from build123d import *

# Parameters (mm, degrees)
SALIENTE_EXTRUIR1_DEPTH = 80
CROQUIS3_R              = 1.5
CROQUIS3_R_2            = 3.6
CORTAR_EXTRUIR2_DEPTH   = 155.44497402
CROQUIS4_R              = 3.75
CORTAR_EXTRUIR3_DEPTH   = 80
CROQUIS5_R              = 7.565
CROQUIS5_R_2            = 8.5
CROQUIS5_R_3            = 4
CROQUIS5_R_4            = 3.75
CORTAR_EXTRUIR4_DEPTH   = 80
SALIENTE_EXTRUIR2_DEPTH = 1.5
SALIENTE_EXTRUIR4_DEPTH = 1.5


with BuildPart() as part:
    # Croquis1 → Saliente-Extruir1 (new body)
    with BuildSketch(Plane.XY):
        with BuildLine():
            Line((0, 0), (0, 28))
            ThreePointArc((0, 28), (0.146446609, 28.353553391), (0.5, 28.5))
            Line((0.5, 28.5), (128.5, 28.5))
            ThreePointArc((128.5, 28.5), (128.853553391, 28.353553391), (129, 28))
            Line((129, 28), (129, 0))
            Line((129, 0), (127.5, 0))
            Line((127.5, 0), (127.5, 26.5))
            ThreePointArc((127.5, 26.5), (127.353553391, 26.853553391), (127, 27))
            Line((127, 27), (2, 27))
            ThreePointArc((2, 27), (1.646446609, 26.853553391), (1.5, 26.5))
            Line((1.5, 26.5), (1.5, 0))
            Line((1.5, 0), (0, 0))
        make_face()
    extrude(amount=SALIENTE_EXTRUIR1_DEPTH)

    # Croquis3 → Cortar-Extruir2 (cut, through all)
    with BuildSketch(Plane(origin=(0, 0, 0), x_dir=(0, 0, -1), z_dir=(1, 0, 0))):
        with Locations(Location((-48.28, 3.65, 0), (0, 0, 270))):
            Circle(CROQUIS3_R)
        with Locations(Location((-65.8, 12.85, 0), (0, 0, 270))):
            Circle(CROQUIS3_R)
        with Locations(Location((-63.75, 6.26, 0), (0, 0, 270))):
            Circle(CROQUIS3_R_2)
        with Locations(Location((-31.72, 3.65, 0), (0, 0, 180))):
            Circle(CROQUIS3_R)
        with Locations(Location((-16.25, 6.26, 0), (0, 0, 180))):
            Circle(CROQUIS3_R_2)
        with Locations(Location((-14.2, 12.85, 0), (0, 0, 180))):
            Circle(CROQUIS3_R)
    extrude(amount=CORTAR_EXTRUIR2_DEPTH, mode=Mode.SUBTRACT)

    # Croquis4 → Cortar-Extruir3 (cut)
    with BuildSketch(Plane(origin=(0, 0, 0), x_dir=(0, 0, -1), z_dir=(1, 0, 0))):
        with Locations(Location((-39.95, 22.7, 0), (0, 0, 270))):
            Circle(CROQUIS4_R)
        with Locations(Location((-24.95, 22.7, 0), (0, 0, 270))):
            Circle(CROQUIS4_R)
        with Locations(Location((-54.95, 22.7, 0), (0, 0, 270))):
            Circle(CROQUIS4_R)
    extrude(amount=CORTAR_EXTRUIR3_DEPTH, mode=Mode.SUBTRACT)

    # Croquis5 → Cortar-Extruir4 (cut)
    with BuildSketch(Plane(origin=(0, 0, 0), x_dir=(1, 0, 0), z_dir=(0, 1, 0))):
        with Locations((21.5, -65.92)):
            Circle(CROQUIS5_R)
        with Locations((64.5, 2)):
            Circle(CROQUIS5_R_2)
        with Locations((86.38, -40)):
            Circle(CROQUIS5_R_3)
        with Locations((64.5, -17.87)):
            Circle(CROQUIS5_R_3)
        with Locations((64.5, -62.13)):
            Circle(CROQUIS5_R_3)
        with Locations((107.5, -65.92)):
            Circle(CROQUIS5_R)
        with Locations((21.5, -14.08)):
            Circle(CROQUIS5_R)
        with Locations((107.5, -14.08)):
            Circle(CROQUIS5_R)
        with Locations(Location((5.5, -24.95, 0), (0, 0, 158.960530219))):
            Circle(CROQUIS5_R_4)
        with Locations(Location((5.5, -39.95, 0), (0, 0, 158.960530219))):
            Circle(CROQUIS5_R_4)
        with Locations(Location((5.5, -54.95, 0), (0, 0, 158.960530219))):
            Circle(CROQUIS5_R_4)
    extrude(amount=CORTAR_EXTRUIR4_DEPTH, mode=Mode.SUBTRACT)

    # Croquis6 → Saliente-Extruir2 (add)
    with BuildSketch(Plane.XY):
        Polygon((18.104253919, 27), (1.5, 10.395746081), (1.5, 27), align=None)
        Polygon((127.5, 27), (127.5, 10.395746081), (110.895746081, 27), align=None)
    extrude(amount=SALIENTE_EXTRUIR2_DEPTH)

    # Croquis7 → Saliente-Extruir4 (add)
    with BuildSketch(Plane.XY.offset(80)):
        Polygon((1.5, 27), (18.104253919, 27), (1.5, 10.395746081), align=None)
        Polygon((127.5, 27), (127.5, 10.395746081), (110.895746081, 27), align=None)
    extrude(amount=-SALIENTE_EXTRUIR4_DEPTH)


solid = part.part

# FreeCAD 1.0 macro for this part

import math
import FreeCAD as App
import Part
import Sketcher

V = App.Vector

doc = App.newDocument("Part")
params = doc.addObject("Spreadsheet::Sheet", "Params")
for row, (alias, value) in enumerate([
    ("sketch1_radius", "0.5 mm"),
    ("sketch1_width", "125 mm"),
    ("sketch1_width2", "128 mm"),
    ("sketch1_height", "28 mm"),
    ("sketch1_height2", "26.5 mm"),
    ("pad1_length", "80 mm"),
    ("sketch2_diameter", "3 mm"),
    ("sketch2_diameter2", "7.2 mm"),
    ("sketch3_diameter", "7.5 mm"),
    ("pocket2_length", "80 mm"),
    ("sketch4_diameter", "17 mm"),
    ("sketch4_diameter2", "8 mm"),
    ("sketch4_diameter3", "7.5 mm"),
    ("sketch4_diameter4", "15.13 mm"),
    ("pocket3_length", "80 mm"),
    ("pad2_length", "1.5 mm"),
    ("pad3_length", "1.5 mm"),
], start=1):
    params.set(f"A{row}", alias)
    params.set(f"B{row}", "=" + value)
    params.setAlias(f"B{row}", alias)

body = doc.addObject("PartDesign::Body", "Body")

# Sketch on XY plane
sketch1 = body.newObject("Sketcher::SketchObject", "Sketch")
sketch1.AttachmentSupport = (doc.getObject("XY_Plane"), [""])
sketch1.MapMode = "FlatFace"
sketch1.addGeometry([
    Part.LineSegment(V(0, 28, 0), V(0, 0, 0)),  # 0
    Part.LineSegment(V(0, 0, 0), V(1.5, 0, 0)),  # 1
    Part.LineSegment(V(1.5, 0, 0), V(1.5, 26.5, 0)),  # 2
    Part.ArcOfCircle(Part.Circle(V(2, 26.5, 0), V(0, 0, 1), 0.5), math.radians(90), math.radians(180)),  # 3
    Part.LineSegment(V(2, 27, 0), V(127, 27, 0)),  # 4
    Part.ArcOfCircle(Part.Circle(V(127, 26.5, 0), V(0, 0, 1), 0.5), math.radians(0), math.radians(90)),  # 5
    Part.LineSegment(V(127.5, 26.5, 0), V(127.5, 0, 0)),  # 6
    Part.LineSegment(V(127.5, 0, 0), V(129, 0, 0)),  # 7
    Part.LineSegment(V(129, 0, 0), V(129, 28, 0)),  # 8
    Part.ArcOfCircle(Part.Circle(V(128.5, 28, 0), V(0, 0, 1), 0.5), math.radians(0), math.radians(90)),  # 9
    Part.LineSegment(V(128.5, 28.5, 0), V(0.5, 28.5, 0)),  # 10
    Part.ArcOfCircle(Part.Circle(V(0.5, 28, 0), V(0, 0, 1), 0.5), math.radians(90), math.radians(180)),  # 11
], False)
sketch1.addConstraint([
    Sketcher.Constraint("Coincident", 0, 2, 1, 1),
    Sketcher.Constraint("Coincident", 1, 2, 2, 1),
    Sketcher.Constraint("Tangent", 2, 2, 3, 2),
    Sketcher.Constraint("Tangent", 3, 1, 4, 1),
    Sketcher.Constraint("Tangent", 4, 2, 5, 2),
    Sketcher.Constraint("Tangent", 5, 1, 6, 1),
    Sketcher.Constraint("Coincident", 6, 2, 7, 1),
    Sketcher.Constraint("Coincident", 7, 2, 8, 1),
    Sketcher.Constraint("Tangent", 8, 2, 9, 1),
    Sketcher.Constraint("Tangent", 9, 2, 10, 1),
    Sketcher.Constraint("Tangent", 10, 2, 11, 1),
    Sketcher.Constraint("Tangent", 11, 2, 0, 1),
    Sketcher.Constraint("Vertical", 0),
    Sketcher.Constraint("Horizontal", 1),
    Sketcher.Constraint("Vertical", 2),
    Sketcher.Constraint("Horizontal", 4),
    Sketcher.Constraint("Vertical", 6),
    Sketcher.Constraint("Horizontal", 7),
    Sketcher.Constraint("Vertical", 8),
    Sketcher.Constraint("Horizontal", 10),
    Sketcher.Constraint("Coincident", 0, 2, -1, 1),
    Sketcher.Constraint("Equal", 3, 5),
    Sketcher.Constraint("Equal", 5, 9),
    Sketcher.Constraint("Equal", 9, 11),
    Sketcher.Constraint("PointOnObject", 6, 2, -1),
    Sketcher.Constraint("Equal", 1, 7),
    Sketcher.Constraint("Radius", 3, 0.5),
    Sketcher.Constraint("DistanceX", 4, 1, 4, 2, 125.0),
    Sketcher.Constraint("DistanceX", 10, 2, 10, 1, 128.0),
    Sketcher.Constraint("DistanceY", 0, 2, 0, 1, 28.0),
    Sketcher.Constraint("DistanceY", 2, 1, 2, 2, 26.5),
])
sketch1.setExpression("Constraints[26]", "Params.sketch1_radius")
sketch1.setExpression("Constraints[27]", "Params.sketch1_width")
sketch1.setExpression("Constraints[28]", "Params.sketch1_width2")
sketch1.setExpression("Constraints[29]", "Params.sketch1_height")
sketch1.setExpression("Constraints[30]", "Params.sketch1_height2")
pad1 = body.newObject("PartDesign::Pad", "Pad")
pad1.Profile = sketch1
pad1.setExpression("Length", "Params.pad1_length")

# Sketch on YZ plane
sketch2 = body.newObject("Sketcher::SketchObject", "Sketch001")
sketch2.AttachmentSupport = (doc.getObject("YZ_Plane"), [""])
sketch2.MapMode = "FlatFace"
sketch2.addGeometry([
    Part.Circle(V(3.65, 48.28, 0), V(0, 0, 1), 1.5),  # 0
    Part.Circle(V(12.85, 65.8, 0), V(0, 0, 1), 1.5),  # 1
    Part.Circle(V(6.26, 63.75, 0), V(0, 0, 1), 3.6),  # 2
    Part.Circle(V(3.65, 31.72, 0), V(0, 0, 1), 1.5),  # 3
    Part.Circle(V(6.26, 16.25, 0), V(0, 0, 1), 3.6),  # 4
    Part.Circle(V(12.85, 14.2, 0), V(0, 0, 1), 1.5),  # 5
], False)
sketch2.addConstraint([
    Sketcher.Constraint("Equal", 0, 1),
    Sketcher.Constraint("Equal", 1, 3),
    Sketcher.Constraint("Equal", 2, 4),
    Sketcher.Constraint("Equal", 3, 5),
    Sketcher.Constraint("Vertical", 0, 3, 3, 3),
    Sketcher.Constraint("Vertical", 2, 3, 4, 3),
    Sketcher.Constraint("Vertical", 1, 3, 5, 3),
    Sketcher.Constraint("Diameter", 0, 3.0),
    Sketcher.Constraint("Diameter", 2, 7.2),
    Sketcher.Constraint("DistanceY", -1, 1, 1, 3, 65.8),
    Sketcher.Constraint("DistanceY", -1, 1, 5, 3, 14.2),
    Sketcher.Constraint("DistanceX", 0, 3, 1, 3, 9.2),
    Sketcher.Constraint("DistanceY", 4, 3, 2, 3, 47.5),
    Sketcher.Constraint("DistanceX", -1, 1, 0, 3, 3.65),
    Sketcher.Constraint("DistanceY", -1, 1, 0, 3, 48.28),
    Sketcher.Constraint("DistanceX", -1, 1, 2, 3, 6.26),
    Sketcher.Constraint("DistanceY", -1, 1, 2, 3, 63.75),
    Sketcher.Constraint("DistanceY", -1, 1, 3, 3, 31.72),
])
sketch2.setExpression("Constraints[7]", "Params.sketch2_diameter")
sketch2.setExpression("Constraints[8]", "Params.sketch2_diameter2")
pocket1 = body.newObject("PartDesign::Pocket", "Pocket")
pocket1.Profile = sketch2
pocket1.Type = "ThroughAll"
pocket1.Reversed = True

# Sketch on YZ plane
sketch3 = body.newObject("Sketcher::SketchObject", "Sketch002")
sketch3.AttachmentSupport = (doc.getObject("YZ_Plane"), [""])
sketch3.MapMode = "FlatFace"
sketch3.addGeometry([
    Part.Circle(V(22.7, 39.95, 0), V(0, 0, 1), 3.75),
    Part.Circle(V(22.7, 24.95, 0), V(0, 0, 1), 3.75),
    Part.Circle(V(22.7, 54.95, 0), V(0, 0, 1), 3.75),
], False)
sketch3.addConstraint([
    Sketcher.Constraint("Equal", 0, 1),
    Sketcher.Constraint("Equal", 1, 2),
    Sketcher.Constraint("Vertical", 0, 3, 1, 3),
    Sketcher.Constraint("Vertical", 1, 3, 2, 3),
    Sketcher.Constraint("Diameter", 0, 7.5),
    Sketcher.Constraint("DistanceY", 1, 3, 0, 3, 15.0),
    Sketcher.Constraint("DistanceY", 0, 3, 2, 3, 15.0),
    Sketcher.Constraint("DistanceX", -1, 1, 0, 3, 22.7),
    Sketcher.Constraint("DistanceY", -1, 1, 0, 3, 39.95),
])
sketch3.setExpression("Constraints[4]", "Params.sketch3_diameter")
pocket2 = body.newObject("PartDesign::Pocket", "Pocket001")
pocket2.Profile = sketch3
pocket2.setExpression("Length", "Params.pocket2_length")
pocket2.Reversed = True

# Sketch on XZ plane
sketch4 = body.newObject("Sketcher::SketchObject", "Sketch003")
sketch4.AttachmentSupport = (doc.getObject("XZ_Plane"), [""])
sketch4.MapMode = "FlatFace"
sketch4.addGeometry([
    Part.Circle(V(21.5, 65.92, 0), V(0, 0, 1), 7.565),  # 0
    Part.Circle(V(64.5, -2, 0), V(0, 0, 1), 8.5),  # 1
    Part.Circle(V(86.38, 40, 0), V(0, 0, 1), 4),  # 2
    Part.Circle(V(64.5, 17.87, 0), V(0, 0, 1), 4),  # 3
    Part.Circle(V(64.5, 62.13, 0), V(0, 0, 1), 4),  # 4
    Part.Circle(V(107.5, 65.92, 0), V(0, 0, 1), 7.565),  # 5
    Part.Circle(V(21.5, 14.08, 0), V(0, 0, 1), 7.565),  # 6
    Part.Circle(V(107.5, 14.08, 0), V(0, 0, 1), 7.565),  # 7
    Part.Circle(V(5.5, 24.95, 0), V(0, 0, 1), 3.75),  # 8
    Part.Circle(V(5.5, 39.95, 0), V(0, 0, 1), 3.75),  # 9
    Part.Circle(V(5.5, 54.95, 0), V(0, 0, 1), 3.75),  # 10
], False)
sketch4.addConstraint([
    Sketcher.Constraint("Equal", 2, 3),
    Sketcher.Constraint("Equal", 3, 4),
    Sketcher.Constraint("Equal", 0, 5),
    Sketcher.Constraint("Equal", 5, 6),
    Sketcher.Constraint("Equal", 6, 7),
    Sketcher.Constraint("Equal", 8, 9),
    Sketcher.Constraint("Equal", 9, 10),
    Sketcher.Constraint("Horizontal", 0, 3, 5, 3),
    Sketcher.Constraint("Horizontal", 6, 3, 7, 3),
    Sketcher.Constraint("Vertical", 1, 3, 3, 3),
    Sketcher.Constraint("Vertical", 3, 3, 4, 3),
    Sketcher.Constraint("Vertical", 0, 3, 6, 3),
    Sketcher.Constraint("Vertical", 5, 3, 7, 3),
    Sketcher.Constraint("Vertical", 8, 3, 9, 3),
    Sketcher.Constraint("Vertical", 9, 3, 10, 3),
    Sketcher.Constraint("Diameter", 1, 17.0),
    Sketcher.Constraint("Diameter", 2, 8.0),
    Sketcher.Constraint("Diameter", 8, 7.5),
    Sketcher.Constraint("Diameter", 0, 15.13),
    Sketcher.Constraint("DistanceY", 1, 3, -1, 1, 2.0),
    Sketcher.Constraint("DistanceY", -1, 1, 2, 3, 40.0),
    Sketcher.Constraint("DistanceX", 0, 3, 1, 3, 43.0),
    Sketcher.Constraint("DistanceX", 4, 3, 5, 3, 43.0),
    Sketcher.Constraint("DistanceX", 8, 3, 6, 3, 16.0),
    Sketcher.Constraint("DistanceY", 8, 3, 9, 3, 15.0),
    Sketcher.Constraint("DistanceY", 9, 3, 10, 3, 15.0),
    Sketcher.Constraint("DistanceX", -1, 1, 0, 3, 21.5),
    Sketcher.Constraint("DistanceY", -1, 1, 0, 3, 65.92),
    Sketcher.Constraint("DistanceX", -1, 1, 2, 3, 86.38),
    Sketcher.Constraint("DistanceY", -1, 1, 3, 3, 17.87),
    Sketcher.Constraint("DistanceY", -1, 1, 4, 3, 62.13),
    Sketcher.Constraint("DistanceY", -1, 1, 6, 3, 14.08),
    Sketcher.Constraint("DistanceY", -1, 1, 8, 3, 24.95),
])
sketch4.setExpression("Constraints[15]", "Params.sketch4_diameter")
sketch4.setExpression("Constraints[16]", "Params.sketch4_diameter2")
sketch4.setExpression("Constraints[17]", "Params.sketch4_diameter3")
sketch4.setExpression("Constraints[18]", "Params.sketch4_diameter4")
pocket3 = body.newObject("PartDesign::Pocket", "Pocket002")
pocket3.Profile = sketch4
pocket3.setExpression("Length", "Params.pocket3_length")

# Sketch on XY plane
sketch5 = body.newObject("Sketcher::SketchObject", "Sketch004")
sketch5.AttachmentSupport = (doc.getObject("XY_Plane"), [""])
sketch5.MapMode = "FlatFace"
sketch5.addGeometry([
    Part.LineSegment(V(1.5, 10.395746, 0), V(18.104254, 27, 0)),  # 0
    Part.LineSegment(V(18.104254, 27, 0), V(1.5, 27, 0)),  # 1
    Part.LineSegment(V(1.5, 27, 0), V(1.5, 10.395746, 0)),  # 2
    Part.LineSegment(V(127.5, 10.395746, 0), V(127.5, 27, 0)),  # 3
    Part.LineSegment(V(127.5, 27, 0), V(110.895746, 27, 0)),  # 4
    Part.LineSegment(V(110.895746, 27, 0), V(127.5, 10.395746, 0)),  # 5
], False)
sketch5.addConstraint([
    Sketcher.Constraint("Coincident", 0, 2, 1, 1),
    Sketcher.Constraint("Coincident", 1, 2, 2, 1),
    Sketcher.Constraint("Coincident", 2, 2, 0, 1),
    Sketcher.Constraint("Coincident", 3, 2, 4, 1),
    Sketcher.Constraint("Coincident", 4, 2, 5, 1),
    Sketcher.Constraint("Coincident", 5, 2, 3, 1),
    Sketcher.Constraint("Horizontal", 1),
    Sketcher.Constraint("Vertical", 2),
    Sketcher.Constraint("Vertical", 3),
    Sketcher.Constraint("Horizontal", 4),
    Sketcher.Constraint("Perpendicular", 0, 5),
    Sketcher.Constraint("Horizontal", 1, 2, 3, 2),
    Sketcher.Constraint("Horizontal", 2, 2, 5, 2),
    Sketcher.Constraint("Equal", 1, 4),
    Sketcher.Constraint("DistanceY", -1, 1, 0, 2, 27.0),
    Sketcher.Constraint("DistanceX", 1, 2, 3, 2, 126.0),
    Sketcher.Constraint("DistanceX", -1, 1, 1, 2, 1.5),
    Sketcher.Constraint("Distance", 0, 23.481961),
])
pad2 = body.newObject("PartDesign::Pad", "Pad001")
pad2.Profile = sketch5
pad2.setExpression("Length", "Params.pad2_length")

# Sketch on XY plane
sketch6 = body.newObject("Sketcher::SketchObject", "Sketch005")
sketch6.AttachmentSupport = (doc.getObject("XY_Plane"), [""])
sketch6.MapMode = "FlatFace"
sketch6.AttachmentOffset = App.Placement(V(0, 0, 80), App.Rotation())
sketch6.addGeometry([
    Part.LineSegment(V(18.104254, 27, 0), V(1.5, 27, 0)),  # 0
    Part.LineSegment(V(1.5, 27, 0), V(1.5, 10.395746, 0)),  # 1
    Part.LineSegment(V(1.5, 10.395746, 0), V(18.104254, 27, 0)),  # 2
    Part.LineSegment(V(127.5, 10.395746, 0), V(127.5, 27, 0)),  # 3
    Part.LineSegment(V(127.5, 27, 0), V(110.895746, 27, 0)),  # 4
    Part.LineSegment(V(110.895746, 27, 0), V(127.5, 10.395746, 0)),  # 5
], False)
sketch6.addConstraint([
    Sketcher.Constraint("Coincident", 0, 2, 1, 1),
    Sketcher.Constraint("Coincident", 1, 2, 2, 1),
    Sketcher.Constraint("Coincident", 2, 2, 0, 1),
    Sketcher.Constraint("Coincident", 3, 2, 4, 1),
    Sketcher.Constraint("Coincident", 4, 2, 5, 1),
    Sketcher.Constraint("Coincident", 5, 2, 3, 1),
    Sketcher.Constraint("Horizontal", 0),
    Sketcher.Constraint("Vertical", 1),
    Sketcher.Constraint("Vertical", 3),
    Sketcher.Constraint("Horizontal", 4),
    Sketcher.Constraint("Perpendicular", 2, 5),
    Sketcher.Constraint("Horizontal", 2, 2, 3, 2),
    Sketcher.Constraint("Horizontal", 1, 2, 5, 2),
    Sketcher.Constraint("Equal", 0, 4),
    Sketcher.Constraint("DistanceY", -1, 1, 0, 2, 27.0),
    Sketcher.Constraint("DistanceX", 0, 2, 3, 2, 126.0),
    Sketcher.Constraint("DistanceX", -1, 1, 0, 2, 1.5),
    Sketcher.Constraint("Distance", 2, 23.481961),
])
pad3 = body.newObject("PartDesign::Pad", "Pad002")
pad3.Profile = sketch6
pad3.setExpression("Length", "Params.pad3_length")
pad3.Reversed = True

doc.recompute()
